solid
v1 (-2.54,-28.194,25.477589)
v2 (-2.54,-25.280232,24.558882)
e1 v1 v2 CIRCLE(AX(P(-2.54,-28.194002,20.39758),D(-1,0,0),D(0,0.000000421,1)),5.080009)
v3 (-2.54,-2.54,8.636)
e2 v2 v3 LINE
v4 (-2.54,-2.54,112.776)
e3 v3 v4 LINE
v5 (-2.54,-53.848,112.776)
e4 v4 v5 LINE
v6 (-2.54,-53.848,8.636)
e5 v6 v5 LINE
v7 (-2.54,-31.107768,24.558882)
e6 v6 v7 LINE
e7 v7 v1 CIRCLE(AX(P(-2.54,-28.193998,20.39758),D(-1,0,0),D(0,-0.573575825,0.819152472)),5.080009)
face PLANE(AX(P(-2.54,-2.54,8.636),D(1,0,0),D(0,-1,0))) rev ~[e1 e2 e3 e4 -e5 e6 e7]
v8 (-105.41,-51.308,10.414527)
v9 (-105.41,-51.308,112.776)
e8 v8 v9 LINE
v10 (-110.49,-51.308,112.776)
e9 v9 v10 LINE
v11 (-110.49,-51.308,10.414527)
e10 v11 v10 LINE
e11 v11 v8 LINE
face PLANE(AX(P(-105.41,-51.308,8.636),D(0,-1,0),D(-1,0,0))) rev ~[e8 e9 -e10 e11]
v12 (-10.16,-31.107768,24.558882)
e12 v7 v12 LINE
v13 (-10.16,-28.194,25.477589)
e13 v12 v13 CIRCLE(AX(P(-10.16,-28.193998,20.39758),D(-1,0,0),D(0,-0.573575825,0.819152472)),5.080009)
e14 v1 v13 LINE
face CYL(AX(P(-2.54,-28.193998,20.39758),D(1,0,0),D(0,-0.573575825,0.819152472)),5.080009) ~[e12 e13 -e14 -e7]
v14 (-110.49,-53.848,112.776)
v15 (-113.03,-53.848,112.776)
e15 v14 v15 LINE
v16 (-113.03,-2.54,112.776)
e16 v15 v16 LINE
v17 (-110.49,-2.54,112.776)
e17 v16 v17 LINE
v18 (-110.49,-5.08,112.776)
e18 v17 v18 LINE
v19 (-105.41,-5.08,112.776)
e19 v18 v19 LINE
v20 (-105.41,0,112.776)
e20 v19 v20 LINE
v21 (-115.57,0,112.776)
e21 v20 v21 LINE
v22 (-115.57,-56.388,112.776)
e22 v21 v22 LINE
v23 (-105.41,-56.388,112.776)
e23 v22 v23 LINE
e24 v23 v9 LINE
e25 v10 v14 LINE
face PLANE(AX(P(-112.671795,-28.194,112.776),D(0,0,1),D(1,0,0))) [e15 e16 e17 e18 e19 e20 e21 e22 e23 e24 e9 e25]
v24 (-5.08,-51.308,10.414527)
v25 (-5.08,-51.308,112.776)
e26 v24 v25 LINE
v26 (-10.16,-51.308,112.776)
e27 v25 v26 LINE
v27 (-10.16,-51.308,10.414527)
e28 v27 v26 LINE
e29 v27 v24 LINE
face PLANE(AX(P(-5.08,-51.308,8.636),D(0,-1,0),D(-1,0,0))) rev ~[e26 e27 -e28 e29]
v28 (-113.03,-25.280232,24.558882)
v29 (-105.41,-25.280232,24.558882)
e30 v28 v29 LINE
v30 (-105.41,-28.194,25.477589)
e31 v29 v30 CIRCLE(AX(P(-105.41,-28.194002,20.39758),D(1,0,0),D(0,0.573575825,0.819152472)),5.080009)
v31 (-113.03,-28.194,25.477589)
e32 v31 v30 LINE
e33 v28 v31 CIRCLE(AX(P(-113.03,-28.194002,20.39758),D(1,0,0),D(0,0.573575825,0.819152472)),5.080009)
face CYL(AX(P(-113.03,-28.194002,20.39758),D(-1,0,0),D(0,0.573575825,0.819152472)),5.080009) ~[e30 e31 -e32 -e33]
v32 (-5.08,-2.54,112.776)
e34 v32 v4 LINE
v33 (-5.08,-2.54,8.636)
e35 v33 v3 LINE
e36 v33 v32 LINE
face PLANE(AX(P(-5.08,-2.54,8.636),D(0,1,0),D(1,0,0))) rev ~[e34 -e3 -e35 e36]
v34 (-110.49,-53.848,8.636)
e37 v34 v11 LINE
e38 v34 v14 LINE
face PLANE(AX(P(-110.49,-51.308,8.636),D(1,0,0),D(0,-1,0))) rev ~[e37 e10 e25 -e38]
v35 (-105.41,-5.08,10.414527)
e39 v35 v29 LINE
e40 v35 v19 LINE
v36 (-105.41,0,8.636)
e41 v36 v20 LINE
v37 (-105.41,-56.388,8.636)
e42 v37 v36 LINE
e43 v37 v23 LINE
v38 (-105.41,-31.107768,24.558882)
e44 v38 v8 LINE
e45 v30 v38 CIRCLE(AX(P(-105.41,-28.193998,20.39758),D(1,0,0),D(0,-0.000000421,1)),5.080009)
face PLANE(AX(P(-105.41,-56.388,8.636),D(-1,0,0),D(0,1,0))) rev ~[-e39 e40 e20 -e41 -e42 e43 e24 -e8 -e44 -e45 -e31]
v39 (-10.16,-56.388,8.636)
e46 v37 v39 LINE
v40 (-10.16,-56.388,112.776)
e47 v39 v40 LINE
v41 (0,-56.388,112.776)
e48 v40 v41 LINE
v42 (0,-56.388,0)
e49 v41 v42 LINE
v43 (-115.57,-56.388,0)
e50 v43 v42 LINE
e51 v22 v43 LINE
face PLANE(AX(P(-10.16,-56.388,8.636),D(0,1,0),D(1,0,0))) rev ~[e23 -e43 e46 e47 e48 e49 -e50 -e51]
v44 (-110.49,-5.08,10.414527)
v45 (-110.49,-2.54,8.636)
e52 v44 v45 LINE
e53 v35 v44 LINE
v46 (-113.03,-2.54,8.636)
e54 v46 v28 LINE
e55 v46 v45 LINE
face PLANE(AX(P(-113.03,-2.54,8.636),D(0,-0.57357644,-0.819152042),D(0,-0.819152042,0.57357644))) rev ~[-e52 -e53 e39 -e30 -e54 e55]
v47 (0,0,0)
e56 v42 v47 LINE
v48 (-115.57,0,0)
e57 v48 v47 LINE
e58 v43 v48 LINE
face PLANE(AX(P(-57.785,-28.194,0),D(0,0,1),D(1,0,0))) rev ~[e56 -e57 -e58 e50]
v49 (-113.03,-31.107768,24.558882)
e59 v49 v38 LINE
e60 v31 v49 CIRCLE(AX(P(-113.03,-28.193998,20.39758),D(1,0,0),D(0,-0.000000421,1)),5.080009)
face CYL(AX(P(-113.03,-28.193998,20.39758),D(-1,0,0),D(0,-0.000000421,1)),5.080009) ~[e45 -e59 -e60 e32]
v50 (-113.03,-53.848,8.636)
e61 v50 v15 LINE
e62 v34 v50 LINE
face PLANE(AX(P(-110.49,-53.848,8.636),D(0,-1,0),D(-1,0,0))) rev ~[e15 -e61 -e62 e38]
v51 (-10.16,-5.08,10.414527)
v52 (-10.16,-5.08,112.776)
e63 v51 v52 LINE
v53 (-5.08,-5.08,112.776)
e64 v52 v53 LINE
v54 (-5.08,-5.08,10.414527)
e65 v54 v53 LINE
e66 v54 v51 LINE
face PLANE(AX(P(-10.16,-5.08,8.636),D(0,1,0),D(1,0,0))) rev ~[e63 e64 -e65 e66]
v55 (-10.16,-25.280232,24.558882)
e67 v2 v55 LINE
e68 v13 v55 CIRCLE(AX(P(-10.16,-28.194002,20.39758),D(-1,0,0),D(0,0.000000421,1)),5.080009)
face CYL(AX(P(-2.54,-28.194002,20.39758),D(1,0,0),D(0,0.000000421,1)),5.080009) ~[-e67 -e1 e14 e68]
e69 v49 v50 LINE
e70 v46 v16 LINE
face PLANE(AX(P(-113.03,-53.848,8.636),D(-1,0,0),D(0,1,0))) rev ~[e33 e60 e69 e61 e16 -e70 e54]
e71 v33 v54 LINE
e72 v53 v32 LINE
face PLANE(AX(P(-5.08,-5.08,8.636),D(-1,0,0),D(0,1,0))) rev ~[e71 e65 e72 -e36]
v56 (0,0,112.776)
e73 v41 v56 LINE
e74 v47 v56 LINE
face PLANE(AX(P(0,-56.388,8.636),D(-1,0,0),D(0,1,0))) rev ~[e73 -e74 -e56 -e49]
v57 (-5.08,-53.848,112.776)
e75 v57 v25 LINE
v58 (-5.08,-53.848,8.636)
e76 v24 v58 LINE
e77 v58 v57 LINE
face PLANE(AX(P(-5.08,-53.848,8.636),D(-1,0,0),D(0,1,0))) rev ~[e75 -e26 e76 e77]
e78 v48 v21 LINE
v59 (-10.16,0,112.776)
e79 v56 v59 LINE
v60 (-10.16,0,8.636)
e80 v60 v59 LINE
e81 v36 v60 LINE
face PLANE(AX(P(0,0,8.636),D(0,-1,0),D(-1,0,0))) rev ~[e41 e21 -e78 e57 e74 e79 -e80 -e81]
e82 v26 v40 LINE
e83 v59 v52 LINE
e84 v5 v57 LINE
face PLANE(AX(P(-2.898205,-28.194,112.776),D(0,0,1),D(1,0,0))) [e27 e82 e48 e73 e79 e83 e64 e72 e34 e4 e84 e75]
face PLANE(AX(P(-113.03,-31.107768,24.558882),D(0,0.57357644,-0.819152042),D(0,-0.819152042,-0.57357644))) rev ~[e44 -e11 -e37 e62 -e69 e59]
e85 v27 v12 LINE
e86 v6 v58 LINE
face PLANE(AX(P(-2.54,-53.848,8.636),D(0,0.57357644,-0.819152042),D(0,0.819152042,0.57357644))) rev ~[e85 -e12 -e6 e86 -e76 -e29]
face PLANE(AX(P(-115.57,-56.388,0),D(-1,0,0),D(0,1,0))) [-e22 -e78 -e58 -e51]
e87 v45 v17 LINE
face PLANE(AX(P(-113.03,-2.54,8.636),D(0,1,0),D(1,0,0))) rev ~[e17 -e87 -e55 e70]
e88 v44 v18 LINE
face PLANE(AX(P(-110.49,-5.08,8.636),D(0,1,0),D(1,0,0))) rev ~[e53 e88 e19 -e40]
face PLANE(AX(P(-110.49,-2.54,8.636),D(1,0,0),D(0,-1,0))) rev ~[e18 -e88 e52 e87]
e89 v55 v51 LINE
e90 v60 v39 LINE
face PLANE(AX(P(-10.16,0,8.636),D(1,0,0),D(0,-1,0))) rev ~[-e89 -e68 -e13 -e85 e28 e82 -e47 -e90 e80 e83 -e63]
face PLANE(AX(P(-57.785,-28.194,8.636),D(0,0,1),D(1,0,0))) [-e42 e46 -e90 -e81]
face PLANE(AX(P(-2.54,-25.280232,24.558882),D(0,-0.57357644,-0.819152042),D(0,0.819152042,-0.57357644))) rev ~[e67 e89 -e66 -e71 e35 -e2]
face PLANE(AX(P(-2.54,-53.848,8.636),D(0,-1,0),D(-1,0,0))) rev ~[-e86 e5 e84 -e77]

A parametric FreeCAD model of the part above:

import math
import FreeCAD as App
import Part
import Sketcher

V = App.Vector
Q = App.Units.Quantity


def add_polygon(sketch, points):
    """Adds a closed chain of lines whose ends are joined by coincident constraints."""
    first, n = sketch.GeometryCount, len(points)
    for a, b in zip(points, points[1:] + points[:1]):
        sketch.addGeometry(Part.LineSegment(App.Vector(*a, 0), App.Vector(*b, 0)), False)
    for i in range(n):
        sketch.addConstraint(Sketcher.Constraint("Coincident", first + i, 2, first + (i + 1) % n, 1))

doc = App.newDocument("Part")
params = doc.addObject("Spreadsheet::Sheet", "Params")
for row, (alias, value) in enumerate([
    ("sketch1_width", "4.55 in"),
    ("sketch1_height", "2.22 in"),
    ("pad1_length", "0.34 in"),
    ("sketch2_width", "0.4 in"),
    ("sketch2_width2", "0.2 in"),
    ("sketch2_width3", "0.1 in"),
    ("sketch2_height", "2.22 in"),
    ("pad2_length", "4.1 in"),
    ("sketch3_width", "2.02 in"),
    ("pad3_length", "0.3 in"),
    ("sketch4_width", "2.02 in"),
    ("pad4_length", "0.3 in"),
], start=1):
    params.set(f"A{row}", alias)
    params.set(f"B{row}", "=" + value)
    params.setAlias(f"B{row}", alias)

body = doc.addObject("PartDesign::Body", "Body")

sketch1 = doc.addObject("Sketcher::SketchObject", "Sketch")
body.addObject(sketch1)
sketch1.AttachmentSupport = (doc.XY_Plane, [""])
sketch1.MapMode = "FlatFace"
add_polygon(sketch1, [(-116, 0), (-116, -56), (0, -56), (0, 0)])
sketch1.addConstraint([
    Sketcher.Constraint("Vertical", 0),
    Sketcher.Constraint("Horizontal", 1),
    Sketcher.Constraint("Vertical", 2),
    Sketcher.Constraint("Horizontal", 3),
    Sketcher.Constraint("Coincident", 2, 2, -1, 1),
    Sketcher.Constraint("DistanceX", 1, 1, 1, 2, Q("4.55 in")),
    Sketcher.Constraint("DistanceY", 0, 2, 0, 1, Q("2.22 in")),
])
sketch1.setExpression("Constraints[9]", "Params.sketch1_width")
sketch1.setExpression("Constraints[10]", "Params.sketch1_height")
pad1 = doc.addObject("PartDesign::Pad", "Pad")
body.addObject(pad1)
pad1.Profile = sketch1
pad1.setExpression("Length", "Params.pad1_length")

sketch2 = doc.addObject("Sketcher::SketchObject", "Sketch001")
body.addObject(sketch2)
sketch2.AttachmentSupport = (doc.XY_Plane, [""])
sketch2.MapMode = "FlatFace"
sketch2.AttachmentOffset = App.Placement(V(0, 0, 0.34 * 25.4), App.Rotation())
add_polygon(sketch2, [(0, -56.4), (0, 0), (-10.2, 0), (-10.2, -5.1), (-5.1, -5.1), (-5.1, -2.5), (-2.5, -2.5), (-2.5, -53.8), (-5.1, -53.8), (-5.1, -51.3), (-10.2, -51.3), (-10.2, -56.4)])
add_polygon(sketch2, [(-105.4, -5.1), (-105.4, 0), (-115.6, 0), (-115.6, -56.4), (-105.4, -56.4), (-105.4, -51.3), (-110.5, -51.3), (-110.5, -53.8), (-113, -53.8), (-113, -2.5), (-110.5, -2.5), (-110.5, -5.1)])
sketch2.addConstraint([
    Sketcher.Constraint("Vertical", 0),
    Sketcher.Constraint("Horizontal", 1),
    Sketcher.Constraint("Vertical", 2),
    Sketcher.Constraint("Horizontal", 3),
    Sketcher.Constraint("Vertical", 4),
    Sketcher.Constraint("Horizontal", 5),
    Sketcher.Constraint("Vertical", 6),
    Sketcher.Constraint("Horizontal", 7),
    Sketcher.Constraint("Vertical", 8),
    Sketcher.Constraint("Horizontal", 9),
    Sketcher.Constraint("Vertical", 10),
    Sketcher.Constraint("Horizontal", 11),
    Sketcher.Constraint("Vertical", 12),
    Sketcher.Constraint("Horizontal", 13),
    Sketcher.Constraint("Vertical", 14),
    Sketcher.Constraint("Horizontal", 15),
    Sketcher.Constraint("Vertical", 16),
    Sketcher.Constraint("Horizontal", 17),
    Sketcher.Constraint("Vertical", 18),
    Sketcher.Constraint("Horizontal", 19),
    Sketcher.Constraint("Vertical", 20),
    Sketcher.Constraint("Horizontal", 21),
    Sketcher.Constraint("Vertical", 22),
    Sketcher.Constraint("Horizontal", 23),
    Sketcher.Constraint("Coincident", 0, 2, -1, 1),
    Sketcher.Constraint("PointOnObject", 12, 2, -1),
    Sketcher.Constraint("Horizontal", 11, 2, 14, 2),
    Sketcher.Constraint("Horizontal", 9, 2, 16, 2),
    Sketcher.Constraint("Horizontal", 7, 2, 18, 2),
    Sketcher.Constraint("Horizontal", 5, 2, 20, 2),
    Sketcher.Constraint("Horizontal", 3, 2, 22, 2),
    Sketcher.Constraint("Vertical", 4, 2, 7, 2),
    Sketcher.Constraint("Vertical", 2, 2, 9, 2),
    Sketcher.Constraint("Vertical", 12, 2, 15, 2),
    Sketcher.Constraint("Vertical", 18, 2, 21, 2),
    Sketcher.Constraint("Equal", 11, 13),
    Sketcher.Constraint("Equal", 9, 17),
    Sketcher.Constraint("Equal", 7, 19),
    Sketcher.Constraint("Equal", 23, 2),
    Sketcher.Constraint("Equal", 21, 4),
    Sketcher.Constraint("Equal", 4, 8),
    Sketcher.Constraint("Equal", 2, 10),
    Sketcher.Constraint("DistanceX", 1, 2, 1, 1, Q("0.4 in")),
    Sketcher.Constraint("DistanceX", 3, 1, 3, 2, Q("0.2 in")),
    Sketcher.Constraint("DistanceX", 5, 1, 5, 2, Q("0.1 in")),
    Sketcher.Constraint("DistanceY", 0, 1, 0, 2, Q("2.22 in")),
    Sketcher.Constraint("DistanceX", 12, 2, -1, 1, Q("4.15 in")),
])
sketch2.setExpression("Constraints[66]", "Params.sketch2_width")
sketch2.setExpression("Constraints[67]", "Params.sketch2_width2")
sketch2.setExpression("Constraints[68]", "Params.sketch2_width3")
sketch2.setExpression("Constraints[69]", "Params.sketch2_height")
pad2 = doc.addObject("PartDesign::Pad", "Pad001")
body.addObject(pad2)
pad2.Profile = sketch2
pad2.setExpression("Length", "Params.pad2_length")

sketch3 = doc.addObject("Sketcher::SketchObject", "Sketch002")
body.addObject(sketch3)
sketch3.AttachmentSupport = (doc.YZ_Plane, [""])
sketch3.MapMode = "FlatFace"
sketch3.AttachmentOffset = App.Placement(V(0, 0, -4.45 * 25.4), App.Rotation())
sketch3.addGeometry([
    Part.LineSegment(V(-53.8, 8.6, 0), V(-2.5, 8.6, 0)),
    Part.LineSegment(V(-2.5, 8.6, 0), V(-25.3, 24.6, 0)),
    Part.ArcOfCircle(Part.Circle(V(-28.2, 20.4, 0), V(0, 0, 1), 5.1), math.radians(55), math.radians(90)),
    Part.ArcOfCircle(Part.Circle(V(-28.2, 20.4, 0), V(0, 0, 1), 5.1), math.radians(90), math.radians(125)),
    Part.LineSegment(V(-31.1, 24.6, 0), V(-53.8, 8.6, 0)),
], False)
sketch3.addConstraint([
    Sketcher.Constraint("Coincident", 0, 2, 1, 1),
    Sketcher.Constraint("Tangent", 1, 2, 2, 1),
    Sketcher.Constraint("Tangent", 2, 2, 3, 1),
    Sketcher.Constraint("Tangent", 3, 2, 4, 1),
    Sketcher.Constraint("Coincident", 4, 2, 0, 1),
    Sketcher.Constraint("Horizontal", 0),
    Sketcher.Constraint("Equal", 2, 3),
    Sketcher.Constraint("Horizontal", 1, 2, 3, 2),
    Sketcher.Constraint("Angle", 1, Q("145 deg")),
    Sketcher.Constraint("DistanceX", 0, 1, 0, 2, Q("2.02 in")),
    Sketcher.Constraint("DistanceX", 0, 2, -1, 1, Q("0.1 in")),
    Sketcher.Constraint("DistanceY", -1, 1, 0, 2, Q("0.34 in")),
    Sketcher.Constraint("DistanceX", 2, 2, -1, 1, Q("1.11 in")),
    Sketcher.Constraint("Radius", 2, 5.080009),
])
sketch3.setExpression("Constraints[9]", "Params.sketch3_width")
pad3 = doc.addObject("PartDesign::Pad", "Pad002")
body.addObject(pad3)
pad3.Profile = sketch3
pad3.setExpression("Length", "Params.pad3_length")

sketch4 = doc.addObject("Sketcher::SketchObject", "Sketch003")
body.addObject(sketch4)
sketch4.AttachmentSupport = (doc.YZ_Plane, [""])
sketch4.MapMode = "FlatFace"
sketch4.AttachmentOffset = App.Placement(V(0, 0, -0.1 * 25.4), App.Rotation())
sketch4.addGeometry([
    Part.LineSegment(V(-2.5, 8.6, 0), V(-53.8, 8.6, 0)),
    Part.LineSegment(V(-53.8, 8.6, 0), V(-31.1, 24.6, 0)),
    Part.ArcOfCircle(Part.Circle(V(-28.2, 20.4, 0), V(0, 0, 1), 5.1), math.radians(90), math.radians(125)),
    Part.ArcOfCircle(Part.Circle(V(-28.2, 20.4, 0), V(0, 0, 1), 5.1), math.radians(55), math.radians(90)),
    Part.LineSegment(V(-25.3, 24.6, 0), V(-2.5, 8.6, 0)),
], False)
sketch4.addConstraint([
    Sketcher.Constraint("Coincident", 0, 2, 1, 1),
    Sketcher.Constraint("Tangent", 1, 2, 2, 2),
    Sketcher.Constraint("Tangent", 2, 1, 3, 2),
    Sketcher.Constraint("Tangent", 3, 1, 4, 1),
    Sketcher.Constraint("Coincident", 4, 2, 0, 1),
    Sketcher.Constraint("Horizontal", 0),
    Sketcher.Constraint("Equal", 2, 3),
    Sketcher.Constraint("Horizontal", 1, 2, 3, 1),
    Sketcher.Constraint("Angle", 1, Q("35 deg")),
    Sketcher.Constraint("DistanceX", 0, 2, 0, 1, Q("2.02 in")),
    Sketcher.Constraint("DistanceX", 4, 2, -1, 1, Q("0.1 in")),
    Sketcher.Constraint("DistanceY", -1, 1, 0, 2, Q("0.34 in")),
    Sketcher.Constraint("DistanceX", 2, 1, -1, 1, Q("1.11 in")),
    Sketcher.Constraint("Radius", 2, 5.080009),
])
sketch4.setExpression("Constraints[9]", "Params.sketch4_width")
pad4 = doc.addObject("PartDesign::Pad", "Pad003")
body.addObject(pad4)
pad4.Profile = sketch4
pad4.setExpression("Length", "Params.pad4_length")
pad4.Reversed = True

doc.recompute()
